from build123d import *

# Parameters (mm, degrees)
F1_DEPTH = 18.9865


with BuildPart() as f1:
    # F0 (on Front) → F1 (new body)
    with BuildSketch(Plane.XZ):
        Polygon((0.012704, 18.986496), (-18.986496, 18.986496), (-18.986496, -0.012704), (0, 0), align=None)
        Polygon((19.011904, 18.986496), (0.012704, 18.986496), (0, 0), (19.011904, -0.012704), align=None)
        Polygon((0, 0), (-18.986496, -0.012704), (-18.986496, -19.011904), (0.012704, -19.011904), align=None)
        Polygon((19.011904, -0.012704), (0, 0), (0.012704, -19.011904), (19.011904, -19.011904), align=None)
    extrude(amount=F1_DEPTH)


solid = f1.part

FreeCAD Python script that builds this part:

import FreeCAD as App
import Part
import Sketcher

V = App.Vector
Q = App.Units.Quantity

doc = App.newDocument("Part")
body = doc.addObject("PartDesign::Body", "Body")

# Sketch on XZ plane
sketch1 = body.newObject("Sketcher::SketchObject", "Sketch")
sketch1.AttachmentSupport = (doc.getObject("XZ_Plane"), [""])
sketch1.MapMode = "FlatFace"
sketch1.addGeometry([
    Part.LineSegment(V(-18.986496, 18.986496, 0), V(-18.986496, -19.011904, 0)),
    Part.LineSegment(V(-18.986496, -19.011904, 0), V(19.011904, -19.011904, 0)),
    Part.LineSegment(V(19.011904, -19.011904, 0), V(19.011904, 18.986496, 0)),
    Part.LineSegment(V(19.011904, 18.986496, 0), V(-18.986496, 18.986496, 0)),
], False)
sketch1.addConstraint([
    Sketcher.Constraint("Coincident", 0, 2, 1, 1),
    Sketcher.Constraint("Coincident", 1, 2, 2, 1),
    Sketcher.Constraint("Coincident", 2, 2, 3, 1),
    Sketcher.Constraint("Coincident", 3, 2, 0, 1),
    Sketcher.Constraint("Vertical", 0),
    Sketcher.Constraint("Horizontal", 1),
    Sketcher.Constraint("Vertical", 2),
    Sketcher.Constraint("Horizontal", 3),
    Sketcher.Constraint("Equal", 3, 0),
    Sketcher.Constraint("DistanceX", 1, 1, 1, 2, Q("1.496 in")),
    Sketcher.Constraint("DistanceX", 0, 2, -1, 1, Q("0.7474998 in")),
    Sketcher.Constraint("DistanceY", 0, 2, -1, 1, Q("0.7485002 in")),
])
pad1 = body.newObject("PartDesign::Pad", "Pad")
pad1.Profile = sketch1
pad1.Length = Q("0.7475 in")

doc.recompute()
